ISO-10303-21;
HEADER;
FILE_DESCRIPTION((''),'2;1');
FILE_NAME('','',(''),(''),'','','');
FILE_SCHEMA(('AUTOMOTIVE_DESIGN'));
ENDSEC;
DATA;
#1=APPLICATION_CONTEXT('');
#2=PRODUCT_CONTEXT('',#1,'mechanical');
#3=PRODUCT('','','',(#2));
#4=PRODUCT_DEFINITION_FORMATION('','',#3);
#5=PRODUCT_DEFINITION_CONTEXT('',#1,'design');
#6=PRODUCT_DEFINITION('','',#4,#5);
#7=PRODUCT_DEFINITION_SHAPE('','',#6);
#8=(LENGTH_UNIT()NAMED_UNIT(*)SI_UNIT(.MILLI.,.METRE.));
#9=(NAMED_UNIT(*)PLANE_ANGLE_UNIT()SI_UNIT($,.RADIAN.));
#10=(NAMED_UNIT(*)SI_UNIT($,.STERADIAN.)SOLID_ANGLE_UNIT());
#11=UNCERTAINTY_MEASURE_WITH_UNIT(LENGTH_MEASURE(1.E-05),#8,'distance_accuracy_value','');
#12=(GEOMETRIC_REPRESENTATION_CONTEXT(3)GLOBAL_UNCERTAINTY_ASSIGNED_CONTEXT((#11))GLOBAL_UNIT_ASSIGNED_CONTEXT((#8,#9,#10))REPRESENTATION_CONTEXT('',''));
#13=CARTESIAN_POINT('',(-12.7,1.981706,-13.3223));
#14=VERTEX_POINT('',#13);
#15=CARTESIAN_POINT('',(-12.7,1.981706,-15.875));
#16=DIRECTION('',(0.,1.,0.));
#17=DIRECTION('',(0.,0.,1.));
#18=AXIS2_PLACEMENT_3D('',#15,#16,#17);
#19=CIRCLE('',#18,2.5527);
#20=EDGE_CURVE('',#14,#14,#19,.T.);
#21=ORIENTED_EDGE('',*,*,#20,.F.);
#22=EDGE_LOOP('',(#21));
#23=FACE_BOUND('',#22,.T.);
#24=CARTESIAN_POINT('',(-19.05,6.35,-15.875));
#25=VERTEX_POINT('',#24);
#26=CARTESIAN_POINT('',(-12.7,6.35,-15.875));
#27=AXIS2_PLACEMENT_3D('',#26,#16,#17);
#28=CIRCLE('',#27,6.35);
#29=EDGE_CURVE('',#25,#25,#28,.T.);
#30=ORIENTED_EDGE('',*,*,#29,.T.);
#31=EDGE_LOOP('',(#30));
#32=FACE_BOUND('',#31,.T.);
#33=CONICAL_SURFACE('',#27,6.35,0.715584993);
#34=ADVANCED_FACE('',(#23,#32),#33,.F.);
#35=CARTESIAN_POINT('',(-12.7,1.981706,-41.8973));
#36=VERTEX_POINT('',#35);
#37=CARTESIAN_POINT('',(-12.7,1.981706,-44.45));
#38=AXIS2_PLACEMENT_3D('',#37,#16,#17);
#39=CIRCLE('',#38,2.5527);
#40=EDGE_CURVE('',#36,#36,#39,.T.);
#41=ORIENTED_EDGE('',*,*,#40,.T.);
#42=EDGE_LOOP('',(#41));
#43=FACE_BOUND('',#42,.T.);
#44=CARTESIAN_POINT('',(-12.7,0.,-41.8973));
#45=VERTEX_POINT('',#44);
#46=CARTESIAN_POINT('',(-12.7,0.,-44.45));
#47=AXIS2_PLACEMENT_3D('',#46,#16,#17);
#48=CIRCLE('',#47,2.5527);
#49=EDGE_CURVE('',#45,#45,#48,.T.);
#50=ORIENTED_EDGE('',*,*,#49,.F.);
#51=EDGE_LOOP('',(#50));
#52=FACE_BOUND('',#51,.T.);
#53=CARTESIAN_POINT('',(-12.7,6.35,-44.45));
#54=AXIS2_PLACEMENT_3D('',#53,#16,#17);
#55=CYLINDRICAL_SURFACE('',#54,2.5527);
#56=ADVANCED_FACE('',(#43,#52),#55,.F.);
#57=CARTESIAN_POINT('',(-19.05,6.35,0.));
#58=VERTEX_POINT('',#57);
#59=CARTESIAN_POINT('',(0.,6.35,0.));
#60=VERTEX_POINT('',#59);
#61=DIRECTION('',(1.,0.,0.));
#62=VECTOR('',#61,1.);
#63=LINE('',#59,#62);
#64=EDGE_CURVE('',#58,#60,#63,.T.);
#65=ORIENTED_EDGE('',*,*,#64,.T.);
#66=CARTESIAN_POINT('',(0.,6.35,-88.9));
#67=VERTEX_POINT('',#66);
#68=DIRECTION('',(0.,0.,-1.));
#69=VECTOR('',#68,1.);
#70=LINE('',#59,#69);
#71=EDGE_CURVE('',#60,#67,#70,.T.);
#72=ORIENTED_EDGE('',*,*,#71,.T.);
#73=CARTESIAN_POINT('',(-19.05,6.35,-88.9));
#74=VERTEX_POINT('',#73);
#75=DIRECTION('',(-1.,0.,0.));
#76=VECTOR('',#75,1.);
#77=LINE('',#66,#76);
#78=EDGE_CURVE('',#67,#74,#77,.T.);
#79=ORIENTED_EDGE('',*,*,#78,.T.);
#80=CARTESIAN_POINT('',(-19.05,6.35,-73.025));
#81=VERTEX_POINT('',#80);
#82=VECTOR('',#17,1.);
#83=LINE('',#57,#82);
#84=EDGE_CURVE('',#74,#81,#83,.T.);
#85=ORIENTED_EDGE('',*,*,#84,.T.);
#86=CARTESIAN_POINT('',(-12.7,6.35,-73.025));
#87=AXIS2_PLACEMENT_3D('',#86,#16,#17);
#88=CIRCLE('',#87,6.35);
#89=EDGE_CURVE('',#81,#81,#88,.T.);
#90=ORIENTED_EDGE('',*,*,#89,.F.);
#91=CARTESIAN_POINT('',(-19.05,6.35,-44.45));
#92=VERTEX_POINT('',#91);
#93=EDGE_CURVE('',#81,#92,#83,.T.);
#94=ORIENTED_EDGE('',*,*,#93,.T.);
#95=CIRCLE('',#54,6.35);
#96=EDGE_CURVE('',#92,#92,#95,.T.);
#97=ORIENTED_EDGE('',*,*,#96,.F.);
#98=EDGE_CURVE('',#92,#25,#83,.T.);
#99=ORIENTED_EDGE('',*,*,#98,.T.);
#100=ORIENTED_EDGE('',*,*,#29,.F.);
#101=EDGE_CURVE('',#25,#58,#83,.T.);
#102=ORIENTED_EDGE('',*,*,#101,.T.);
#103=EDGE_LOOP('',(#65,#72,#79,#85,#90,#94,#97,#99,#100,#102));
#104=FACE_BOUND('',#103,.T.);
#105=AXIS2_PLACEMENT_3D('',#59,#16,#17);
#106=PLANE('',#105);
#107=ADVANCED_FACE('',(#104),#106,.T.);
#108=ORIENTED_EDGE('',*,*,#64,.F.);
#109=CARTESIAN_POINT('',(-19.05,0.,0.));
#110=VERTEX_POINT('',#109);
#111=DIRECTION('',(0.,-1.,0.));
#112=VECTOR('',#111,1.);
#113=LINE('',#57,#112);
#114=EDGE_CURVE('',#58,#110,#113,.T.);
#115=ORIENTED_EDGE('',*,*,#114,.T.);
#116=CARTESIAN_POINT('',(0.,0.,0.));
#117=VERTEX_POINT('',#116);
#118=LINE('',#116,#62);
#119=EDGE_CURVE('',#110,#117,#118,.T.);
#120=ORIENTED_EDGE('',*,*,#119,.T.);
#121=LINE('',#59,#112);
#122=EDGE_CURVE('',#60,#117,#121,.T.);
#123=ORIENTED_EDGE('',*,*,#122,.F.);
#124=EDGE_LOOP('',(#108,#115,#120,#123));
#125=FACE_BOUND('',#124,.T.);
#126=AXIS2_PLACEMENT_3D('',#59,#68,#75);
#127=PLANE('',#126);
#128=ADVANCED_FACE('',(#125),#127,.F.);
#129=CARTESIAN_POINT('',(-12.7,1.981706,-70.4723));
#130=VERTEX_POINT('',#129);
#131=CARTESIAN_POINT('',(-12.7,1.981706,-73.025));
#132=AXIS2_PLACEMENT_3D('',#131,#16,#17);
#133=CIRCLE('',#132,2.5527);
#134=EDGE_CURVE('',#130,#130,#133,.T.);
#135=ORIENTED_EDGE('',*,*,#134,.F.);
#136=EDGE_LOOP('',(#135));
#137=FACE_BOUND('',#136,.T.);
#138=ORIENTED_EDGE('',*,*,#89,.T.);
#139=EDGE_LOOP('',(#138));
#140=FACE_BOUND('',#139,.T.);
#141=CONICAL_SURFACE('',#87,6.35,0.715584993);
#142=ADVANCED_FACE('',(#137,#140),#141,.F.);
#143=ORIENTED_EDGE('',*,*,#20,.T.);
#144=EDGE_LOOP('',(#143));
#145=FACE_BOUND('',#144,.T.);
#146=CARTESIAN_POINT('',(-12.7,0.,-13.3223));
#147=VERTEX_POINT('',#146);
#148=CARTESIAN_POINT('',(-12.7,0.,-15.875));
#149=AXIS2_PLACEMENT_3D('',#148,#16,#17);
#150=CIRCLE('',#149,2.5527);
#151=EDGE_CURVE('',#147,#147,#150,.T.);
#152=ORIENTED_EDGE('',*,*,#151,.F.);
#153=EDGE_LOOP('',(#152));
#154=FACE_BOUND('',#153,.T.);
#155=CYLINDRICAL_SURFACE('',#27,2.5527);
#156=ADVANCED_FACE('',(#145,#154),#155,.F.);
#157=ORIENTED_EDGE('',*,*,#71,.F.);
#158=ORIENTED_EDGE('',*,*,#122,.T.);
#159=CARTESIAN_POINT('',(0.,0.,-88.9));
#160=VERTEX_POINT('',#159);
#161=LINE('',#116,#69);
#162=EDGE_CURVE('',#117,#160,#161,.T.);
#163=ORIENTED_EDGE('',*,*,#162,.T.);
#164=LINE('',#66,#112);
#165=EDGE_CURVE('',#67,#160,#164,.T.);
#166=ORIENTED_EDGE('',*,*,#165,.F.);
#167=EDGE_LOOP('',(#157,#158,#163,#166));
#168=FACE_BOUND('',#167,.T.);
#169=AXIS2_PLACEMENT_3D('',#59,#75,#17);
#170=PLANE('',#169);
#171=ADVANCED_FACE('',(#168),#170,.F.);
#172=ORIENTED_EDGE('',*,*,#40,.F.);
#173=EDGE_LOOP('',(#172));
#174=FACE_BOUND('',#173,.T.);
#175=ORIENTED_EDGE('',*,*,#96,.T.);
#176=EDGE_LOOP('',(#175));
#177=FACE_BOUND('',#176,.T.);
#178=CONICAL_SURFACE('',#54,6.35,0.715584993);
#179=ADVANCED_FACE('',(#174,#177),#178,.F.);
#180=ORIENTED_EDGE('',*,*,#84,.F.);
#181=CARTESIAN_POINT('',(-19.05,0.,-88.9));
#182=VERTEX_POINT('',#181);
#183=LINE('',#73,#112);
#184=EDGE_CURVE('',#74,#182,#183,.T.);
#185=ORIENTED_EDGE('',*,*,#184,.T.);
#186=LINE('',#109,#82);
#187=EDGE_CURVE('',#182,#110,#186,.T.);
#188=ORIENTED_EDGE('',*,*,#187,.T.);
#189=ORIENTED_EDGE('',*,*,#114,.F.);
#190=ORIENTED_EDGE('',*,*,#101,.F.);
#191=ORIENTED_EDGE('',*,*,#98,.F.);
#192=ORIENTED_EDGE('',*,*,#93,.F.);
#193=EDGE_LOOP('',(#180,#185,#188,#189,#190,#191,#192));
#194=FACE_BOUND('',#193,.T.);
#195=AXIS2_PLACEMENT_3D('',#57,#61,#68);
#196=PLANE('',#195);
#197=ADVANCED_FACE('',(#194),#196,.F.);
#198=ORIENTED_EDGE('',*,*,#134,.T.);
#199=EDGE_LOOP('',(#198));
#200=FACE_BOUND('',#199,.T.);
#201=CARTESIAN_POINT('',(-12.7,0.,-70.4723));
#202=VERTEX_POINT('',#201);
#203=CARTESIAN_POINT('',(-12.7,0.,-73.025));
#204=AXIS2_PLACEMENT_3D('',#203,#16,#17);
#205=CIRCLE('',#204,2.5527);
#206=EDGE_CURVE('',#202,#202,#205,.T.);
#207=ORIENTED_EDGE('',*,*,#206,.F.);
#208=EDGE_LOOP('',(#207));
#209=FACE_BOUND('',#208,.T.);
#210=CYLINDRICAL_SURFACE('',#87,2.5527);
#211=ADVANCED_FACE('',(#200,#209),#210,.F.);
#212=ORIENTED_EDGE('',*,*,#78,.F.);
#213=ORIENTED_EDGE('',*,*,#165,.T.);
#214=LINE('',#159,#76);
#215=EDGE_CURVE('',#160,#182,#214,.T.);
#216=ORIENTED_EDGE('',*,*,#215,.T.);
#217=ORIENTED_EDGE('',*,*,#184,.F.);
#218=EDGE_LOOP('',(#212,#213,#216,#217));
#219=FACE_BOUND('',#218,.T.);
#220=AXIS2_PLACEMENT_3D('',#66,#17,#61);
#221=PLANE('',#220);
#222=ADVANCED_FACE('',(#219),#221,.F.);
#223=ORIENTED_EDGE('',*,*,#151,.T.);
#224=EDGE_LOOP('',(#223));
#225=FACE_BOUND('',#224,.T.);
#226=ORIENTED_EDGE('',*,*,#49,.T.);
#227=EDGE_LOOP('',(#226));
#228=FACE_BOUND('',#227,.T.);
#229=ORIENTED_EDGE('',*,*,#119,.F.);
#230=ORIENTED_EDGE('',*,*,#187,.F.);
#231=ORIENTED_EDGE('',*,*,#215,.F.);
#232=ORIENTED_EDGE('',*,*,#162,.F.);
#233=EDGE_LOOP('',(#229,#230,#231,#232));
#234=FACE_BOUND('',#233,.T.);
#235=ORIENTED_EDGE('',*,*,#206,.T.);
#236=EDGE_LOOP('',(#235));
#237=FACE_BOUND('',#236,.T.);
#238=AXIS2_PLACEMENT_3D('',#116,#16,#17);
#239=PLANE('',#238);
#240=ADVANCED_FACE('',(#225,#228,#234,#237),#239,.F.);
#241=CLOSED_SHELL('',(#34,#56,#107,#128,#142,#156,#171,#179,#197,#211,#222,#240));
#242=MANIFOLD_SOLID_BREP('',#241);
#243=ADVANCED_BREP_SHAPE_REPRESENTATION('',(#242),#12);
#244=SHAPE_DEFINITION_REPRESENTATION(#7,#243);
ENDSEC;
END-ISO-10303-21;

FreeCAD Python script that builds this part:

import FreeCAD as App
import Part
import Sketcher

V = App.Vector
Q = App.Units.Quantity

doc = App.newDocument("Part")
body = doc.addObject("PartDesign::Body", "Body")

sketch1 = body.newObject("Sketcher::SketchObject", "Sketch")
sketch1.AttachmentSupport = (doc.getObject("XZ_Plane"), [""])
sketch1.MapMode = "FlatFace"
sketch1.addGeometry(Part.LineSegment(V(-19.05, -88.9, 0), V(-19.05, 0, 0)), False)
sketch1.addGeometry(Part.LineSegment(V(-19.05, 0, 0), V(0, 0, 0)), False)
sketch1.addGeometry(Part.LineSegment(V(0, 0, 0), V(0, -88.9, 0)), False)
sketch1.addGeometry(Part.LineSegment(V(0, -88.9, 0), V(-19.05, -88.9, 0)), False)
sketch1.addConstraint(Sketcher.Constraint("Coincident", 0, 2, 1, 1))
sketch1.addConstraint(Sketcher.Constraint("Coincident", 1, 2, 2, 1))
sketch1.addConstraint(Sketcher.Constraint("Coincident", 2, 2, 3, 1))
sketch1.addConstraint(Sketcher.Constraint("Coincident", 3, 2, 0, 1))
sketch1.addConstraint(Sketcher.Constraint("Vertical", 0))
sketch1.addConstraint(Sketcher.Constraint("Horizontal", 1))
sketch1.addConstraint(Sketcher.Constraint("Vertical", 2))
sketch1.addConstraint(Sketcher.Constraint("Horizontal", 3))
sketch1.addConstraint(Sketcher.Constraint("Coincident", 1, 2, -1, 1))
sketch1.addConstraint(Sketcher.Constraint("DistanceY", 0, 1, 0, 2, Q("3.5 in")))
sketch1.addConstraint(Sketcher.Constraint("DistanceX", 1, 1, 1, 2, Q("0.75 in")))
pad1 = body.newObject("PartDesign::Pad", "Pad")
pad1.Profile = sketch1
pad1.Length = Q("0.25 in")
pad1.Reversed = True

sketch2 = body.newObject("Sketcher::SketchObject", "Sketch001")
sketch2.AttachmentSupport = (doc.getObject("YZ_Plane"), [""])
sketch2.MapMode = "FlatFace"
sketch2.AttachmentOffset = App.Placement(V(0, 0, -0.5 * 25.4), App.Rotation())
sketch2.addGeometry(Part.LineSegment(V(0, -15.875, 0), V(6.35, -15.875, 0)), False)
sketch2.addGeometry(Part.LineSegment(V(6.35, -15.875, 0), V(6.35, -9.525, 0)), False)
sketch2.addGeometry(Part.LineSegment(V(6.35, -9.525, 0), V(1.981706, -13.3223, 0)), False)
sketch2.addGeometry(Part.LineSegment(V(1.981706, -13.3223, 0), V(0, -13.3223, 0)), False)
sketch2.addGeometry(Part.LineSegment(V(0, -13.3223, 0), V(0, -15.875, 0)), False)
sketch2.addGeometry(Part.LineSegment(V(6.35, -15.875, 0), V(0, -15.875, 0)), True)
sketch2.addConstraint(Sketcher.Constraint("Coincident", 0, 2, 1, 1))
sketch2.addConstraint(Sketcher.Constraint("Coincident", 1, 2, 2, 1))
sketch2.addConstraint(Sketcher.Constraint("Coincident", 2, 2, 3, 1))
sketch2.addConstraint(Sketcher.Constraint("Coincident", 3, 2, 4, 1))
sketch2.addConstraint(Sketcher.Constraint("Coincident", 4, 2, 0, 1))
sketch2.addConstraint(Sketcher.Constraint("Horizontal", 0))
sketch2.addConstraint(Sketcher.Constraint("Vertical", 1))
sketch2.addConstraint(Sketcher.Constraint("Horizontal", 3))
sketch2.addConstraint(Sketcher.Constraint("Vertical", 4))
sketch2.addConstraint(Sketcher.Constraint("Horizontal", 5))
sketch2.addConstraint(Sketcher.Constraint("Coincident", 5, 1, 0, 2))
sketch2.addConstraint(Sketcher.Constraint("PointOnObject", 3, 2, -2))
sketch2.addConstraint(Sketcher.Constraint("PointOnObject", 5, 2, -2))
sketch2.addConstraint(Sketcher.Constraint("Equal", 5, 1))
sketch2.addConstraint(Sketcher.Constraint("Angle", 2, Q("-139 deg")))
sketch2.addConstraint(Sketcher.Constraint("DistanceX", 0, 1, 0, 2, Q("0.25 in")))
sketch2.addConstraint(Sketcher.Constraint("DistanceY", 4, 2, 4, 1, Q("0.1005 in")))
sketch2.addConstraint(Sketcher.Constraint("DistanceY", 0, 2, -1, 1, Q("0.625 in")))
groove = body.newObject("PartDesign::Groove", "Groove")
groove.Profile = sketch2
groove.ReferenceAxis = (sketch2, ["Axis0"])
groove.Angle = 360
doc.recompute()

linearpattern = body.newObject("PartDesign::LinearPattern", "LinearPattern")
linearpattern.Originals = [groove]
linearpattern.Direction = (doc.getObject("Z_Axis"), [""])
linearpattern.Mode = "offset"
linearpattern.Offset = Q("1.125 in")
linearpattern.Occurrences = 2
linearpattern.Reversed = True
body.Tip = linearpattern
doc.recompute()

linearpattern2 = body.newObject("PartDesign::LinearPattern", "LinearPattern001")
linearpattern2.Originals = [groove]
linearpattern2.Direction = (doc.getObject("Z_Axis"), [""])
linearpattern2.Mode = "offset"
linearpattern2.Offset = Q("2.25 in")
linearpattern2.Occurrences = 2
linearpattern2.Reversed = True
body.Tip = linearpattern2

doc.recompute()
